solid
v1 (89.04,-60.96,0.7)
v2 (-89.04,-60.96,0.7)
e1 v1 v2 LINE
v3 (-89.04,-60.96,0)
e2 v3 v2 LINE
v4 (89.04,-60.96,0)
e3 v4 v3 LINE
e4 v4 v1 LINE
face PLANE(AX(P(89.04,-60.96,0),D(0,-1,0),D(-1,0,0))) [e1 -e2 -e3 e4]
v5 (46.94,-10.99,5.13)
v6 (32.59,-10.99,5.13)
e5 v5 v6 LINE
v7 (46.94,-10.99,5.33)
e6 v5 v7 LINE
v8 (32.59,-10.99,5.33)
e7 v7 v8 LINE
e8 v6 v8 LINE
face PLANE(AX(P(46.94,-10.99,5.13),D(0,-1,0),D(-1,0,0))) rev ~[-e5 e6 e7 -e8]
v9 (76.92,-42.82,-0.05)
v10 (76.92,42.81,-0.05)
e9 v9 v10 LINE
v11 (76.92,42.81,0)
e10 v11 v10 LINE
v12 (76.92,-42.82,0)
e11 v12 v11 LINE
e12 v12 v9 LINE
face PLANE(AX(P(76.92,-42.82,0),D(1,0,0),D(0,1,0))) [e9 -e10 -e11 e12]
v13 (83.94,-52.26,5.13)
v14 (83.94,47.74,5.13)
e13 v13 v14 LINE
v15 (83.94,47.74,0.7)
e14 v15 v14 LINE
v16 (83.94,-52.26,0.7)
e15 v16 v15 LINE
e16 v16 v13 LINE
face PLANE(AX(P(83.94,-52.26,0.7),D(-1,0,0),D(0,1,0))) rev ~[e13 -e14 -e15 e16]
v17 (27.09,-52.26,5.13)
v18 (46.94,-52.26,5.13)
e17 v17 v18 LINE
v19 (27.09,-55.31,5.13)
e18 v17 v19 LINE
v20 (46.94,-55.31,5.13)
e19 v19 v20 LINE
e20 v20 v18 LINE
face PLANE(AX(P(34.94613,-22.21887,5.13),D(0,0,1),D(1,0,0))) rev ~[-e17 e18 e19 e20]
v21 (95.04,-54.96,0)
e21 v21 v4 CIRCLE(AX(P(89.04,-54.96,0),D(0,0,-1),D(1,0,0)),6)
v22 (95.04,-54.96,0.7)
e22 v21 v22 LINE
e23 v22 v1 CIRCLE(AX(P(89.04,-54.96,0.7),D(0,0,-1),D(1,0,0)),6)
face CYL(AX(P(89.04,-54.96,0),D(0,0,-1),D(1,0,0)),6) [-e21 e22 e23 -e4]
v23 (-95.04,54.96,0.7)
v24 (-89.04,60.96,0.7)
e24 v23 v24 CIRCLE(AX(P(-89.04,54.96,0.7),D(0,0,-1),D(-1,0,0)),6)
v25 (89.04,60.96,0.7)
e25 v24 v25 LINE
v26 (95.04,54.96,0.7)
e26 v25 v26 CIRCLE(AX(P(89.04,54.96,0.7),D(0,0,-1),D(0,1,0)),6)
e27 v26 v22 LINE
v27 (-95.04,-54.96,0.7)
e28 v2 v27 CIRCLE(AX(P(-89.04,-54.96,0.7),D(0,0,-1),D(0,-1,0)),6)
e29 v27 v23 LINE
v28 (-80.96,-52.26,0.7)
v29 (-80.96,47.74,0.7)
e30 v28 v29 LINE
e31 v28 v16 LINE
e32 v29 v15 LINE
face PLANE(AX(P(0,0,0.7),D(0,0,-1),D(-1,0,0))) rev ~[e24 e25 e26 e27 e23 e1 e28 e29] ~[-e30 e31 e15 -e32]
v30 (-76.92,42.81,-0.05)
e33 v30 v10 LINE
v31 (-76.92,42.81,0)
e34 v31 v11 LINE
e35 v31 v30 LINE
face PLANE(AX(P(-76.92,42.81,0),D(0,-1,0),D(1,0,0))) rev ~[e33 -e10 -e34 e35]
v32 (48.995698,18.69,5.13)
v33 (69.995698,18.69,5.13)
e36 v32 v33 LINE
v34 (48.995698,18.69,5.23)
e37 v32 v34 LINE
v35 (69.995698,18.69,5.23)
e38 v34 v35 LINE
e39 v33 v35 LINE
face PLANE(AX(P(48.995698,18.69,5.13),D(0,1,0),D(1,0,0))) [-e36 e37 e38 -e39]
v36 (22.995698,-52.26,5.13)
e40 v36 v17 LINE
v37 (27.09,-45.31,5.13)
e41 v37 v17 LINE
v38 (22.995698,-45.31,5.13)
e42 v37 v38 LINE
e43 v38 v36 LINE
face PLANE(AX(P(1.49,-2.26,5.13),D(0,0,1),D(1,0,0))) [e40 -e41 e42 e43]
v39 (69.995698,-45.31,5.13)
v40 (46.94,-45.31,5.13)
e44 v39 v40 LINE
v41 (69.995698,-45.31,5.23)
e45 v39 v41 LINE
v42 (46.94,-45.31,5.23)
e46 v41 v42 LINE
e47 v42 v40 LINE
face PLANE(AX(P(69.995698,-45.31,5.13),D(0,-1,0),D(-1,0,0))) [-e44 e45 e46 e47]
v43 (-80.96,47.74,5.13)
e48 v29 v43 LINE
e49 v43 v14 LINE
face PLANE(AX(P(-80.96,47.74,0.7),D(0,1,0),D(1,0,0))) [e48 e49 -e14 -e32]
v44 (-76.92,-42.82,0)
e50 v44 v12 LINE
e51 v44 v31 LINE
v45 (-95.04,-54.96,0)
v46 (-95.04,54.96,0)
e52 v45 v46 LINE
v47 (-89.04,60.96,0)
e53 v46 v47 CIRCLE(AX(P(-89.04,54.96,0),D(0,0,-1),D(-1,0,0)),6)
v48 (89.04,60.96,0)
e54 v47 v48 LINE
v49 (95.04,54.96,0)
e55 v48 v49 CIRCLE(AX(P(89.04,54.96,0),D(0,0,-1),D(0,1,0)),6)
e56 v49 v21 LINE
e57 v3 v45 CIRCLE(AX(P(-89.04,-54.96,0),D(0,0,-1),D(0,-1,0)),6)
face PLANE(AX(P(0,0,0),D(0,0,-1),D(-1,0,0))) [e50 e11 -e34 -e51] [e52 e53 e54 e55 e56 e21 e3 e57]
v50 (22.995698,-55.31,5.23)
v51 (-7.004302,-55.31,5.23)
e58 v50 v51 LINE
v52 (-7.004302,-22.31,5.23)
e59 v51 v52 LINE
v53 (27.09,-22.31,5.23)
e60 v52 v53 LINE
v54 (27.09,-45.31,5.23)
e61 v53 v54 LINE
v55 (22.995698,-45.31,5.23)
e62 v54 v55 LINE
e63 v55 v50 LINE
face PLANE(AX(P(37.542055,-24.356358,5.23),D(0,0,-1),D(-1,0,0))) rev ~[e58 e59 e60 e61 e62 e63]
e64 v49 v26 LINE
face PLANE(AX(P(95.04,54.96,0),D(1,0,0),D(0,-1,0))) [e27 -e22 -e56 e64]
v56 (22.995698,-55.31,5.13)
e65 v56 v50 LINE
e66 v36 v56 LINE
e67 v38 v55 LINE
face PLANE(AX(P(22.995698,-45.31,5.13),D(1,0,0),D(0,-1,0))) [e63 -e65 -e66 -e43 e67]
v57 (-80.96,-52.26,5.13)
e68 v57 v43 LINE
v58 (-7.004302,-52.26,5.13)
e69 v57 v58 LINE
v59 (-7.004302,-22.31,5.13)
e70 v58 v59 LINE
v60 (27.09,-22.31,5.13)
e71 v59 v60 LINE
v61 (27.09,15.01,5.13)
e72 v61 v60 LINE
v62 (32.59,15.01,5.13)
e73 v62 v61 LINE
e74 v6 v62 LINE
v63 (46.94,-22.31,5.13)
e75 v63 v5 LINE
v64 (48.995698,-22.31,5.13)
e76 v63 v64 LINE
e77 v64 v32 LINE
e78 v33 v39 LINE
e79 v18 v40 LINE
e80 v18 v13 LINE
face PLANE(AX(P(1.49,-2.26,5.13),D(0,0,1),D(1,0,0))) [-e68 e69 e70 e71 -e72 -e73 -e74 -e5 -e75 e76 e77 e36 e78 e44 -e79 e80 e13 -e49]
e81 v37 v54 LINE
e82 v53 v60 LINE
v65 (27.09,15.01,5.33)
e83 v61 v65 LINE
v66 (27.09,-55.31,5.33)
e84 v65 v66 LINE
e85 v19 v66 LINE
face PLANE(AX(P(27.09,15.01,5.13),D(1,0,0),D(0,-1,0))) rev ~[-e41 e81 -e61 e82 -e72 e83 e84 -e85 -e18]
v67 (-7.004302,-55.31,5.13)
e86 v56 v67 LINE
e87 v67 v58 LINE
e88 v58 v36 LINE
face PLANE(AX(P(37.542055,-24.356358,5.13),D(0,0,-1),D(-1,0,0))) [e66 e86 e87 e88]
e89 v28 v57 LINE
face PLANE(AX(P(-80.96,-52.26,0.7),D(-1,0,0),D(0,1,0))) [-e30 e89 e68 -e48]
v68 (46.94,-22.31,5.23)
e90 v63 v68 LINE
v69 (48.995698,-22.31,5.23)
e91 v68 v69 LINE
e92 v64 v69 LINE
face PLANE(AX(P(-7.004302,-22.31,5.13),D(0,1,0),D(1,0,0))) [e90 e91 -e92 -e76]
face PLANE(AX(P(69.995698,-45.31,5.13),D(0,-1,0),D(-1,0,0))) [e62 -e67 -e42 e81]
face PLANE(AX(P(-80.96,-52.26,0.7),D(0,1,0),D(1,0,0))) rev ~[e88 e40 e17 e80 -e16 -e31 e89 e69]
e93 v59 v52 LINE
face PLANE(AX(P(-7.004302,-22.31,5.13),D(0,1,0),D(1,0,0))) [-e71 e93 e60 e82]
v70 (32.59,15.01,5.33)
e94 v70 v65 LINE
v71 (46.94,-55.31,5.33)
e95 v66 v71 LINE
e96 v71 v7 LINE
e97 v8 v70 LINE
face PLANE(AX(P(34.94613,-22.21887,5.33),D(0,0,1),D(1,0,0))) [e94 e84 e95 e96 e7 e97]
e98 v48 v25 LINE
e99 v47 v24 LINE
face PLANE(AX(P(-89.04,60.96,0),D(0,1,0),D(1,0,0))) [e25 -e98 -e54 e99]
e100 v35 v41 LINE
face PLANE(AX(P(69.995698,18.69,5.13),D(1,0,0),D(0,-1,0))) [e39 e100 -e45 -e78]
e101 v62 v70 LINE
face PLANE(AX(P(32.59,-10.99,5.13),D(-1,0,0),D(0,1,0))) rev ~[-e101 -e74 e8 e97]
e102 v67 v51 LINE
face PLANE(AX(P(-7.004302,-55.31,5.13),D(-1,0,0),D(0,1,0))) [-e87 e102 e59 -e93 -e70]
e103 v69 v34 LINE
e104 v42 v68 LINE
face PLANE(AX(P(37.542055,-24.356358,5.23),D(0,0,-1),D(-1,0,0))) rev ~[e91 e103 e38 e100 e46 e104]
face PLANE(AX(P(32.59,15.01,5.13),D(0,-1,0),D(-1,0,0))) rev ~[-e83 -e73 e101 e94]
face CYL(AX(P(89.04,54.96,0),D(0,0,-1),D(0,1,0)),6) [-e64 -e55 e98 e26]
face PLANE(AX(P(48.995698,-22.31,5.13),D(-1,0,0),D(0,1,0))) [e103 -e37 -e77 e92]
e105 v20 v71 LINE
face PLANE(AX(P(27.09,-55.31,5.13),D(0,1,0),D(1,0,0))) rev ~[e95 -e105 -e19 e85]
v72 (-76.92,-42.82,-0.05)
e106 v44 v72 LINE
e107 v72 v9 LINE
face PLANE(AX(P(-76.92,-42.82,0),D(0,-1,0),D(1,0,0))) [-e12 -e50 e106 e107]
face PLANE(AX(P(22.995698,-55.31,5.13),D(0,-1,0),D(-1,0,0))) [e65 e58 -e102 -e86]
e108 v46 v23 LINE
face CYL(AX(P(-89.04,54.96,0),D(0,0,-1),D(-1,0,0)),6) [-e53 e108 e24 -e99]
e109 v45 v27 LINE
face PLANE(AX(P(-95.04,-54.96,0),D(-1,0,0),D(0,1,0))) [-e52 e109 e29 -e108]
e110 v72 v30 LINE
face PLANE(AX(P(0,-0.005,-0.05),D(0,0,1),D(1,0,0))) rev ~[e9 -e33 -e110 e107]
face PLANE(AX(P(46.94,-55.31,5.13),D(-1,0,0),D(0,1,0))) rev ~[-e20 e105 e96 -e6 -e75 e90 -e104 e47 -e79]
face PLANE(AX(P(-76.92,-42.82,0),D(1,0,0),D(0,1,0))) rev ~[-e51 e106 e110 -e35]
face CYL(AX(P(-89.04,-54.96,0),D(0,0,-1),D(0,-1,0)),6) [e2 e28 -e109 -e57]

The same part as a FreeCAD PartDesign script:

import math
import FreeCAD as App
import Part
import Sketcher
Q = App.Units.Quantity


def add_polygon(sketch, points):
    """Adds a closed chain of lines whose ends are joined by coincident constraints."""
    first, n = sketch.GeometryCount, len(points)
    for a, b in zip(points, points[1:] + points[:1]):
        sketch.addGeometry(Part.LineSegment(App.Vector(*a, 0), App.Vector(*b, 0)), False)
    for i in range(n):
        sketch.addConstraint(Sketcher.Constraint("Coincident", first + i, 2, first + (i + 1) % n, 1))

doc = App.newDocument("Part")
body = doc.addObject("PartDesign::Body", "Body")

# Sketch on XY plane
sketch1 = body.newObject("Sketcher::SketchObject", "Sketch")
sketch1.AttachmentSupport = (doc.getObject("XY_Plane"), [""])
sketch1.MapMode = "FlatFace"
sketch1.addGeometry(Part.LineSegment(App.Vector(89, 61, 0), App.Vector(-89, 61, 0)), False)
sketch1.addGeometry(Part.ArcOfCircle(Part.Circle(App.Vector(-89, 55, 0), App.Vector(0, 0, 1), 6), math.radians(90), math.radians(180)), False)
sketch1.addGeometry(Part.LineSegment(App.Vector(-95, 55, 0), App.Vector(-95, -55, 0)), False)
sketch1.addGeometry(Part.ArcOfCircle(Part.Circle(App.Vector(-89, -55, 0), App.Vector(0, 0, 1), 6), math.radians(180), math.radians(270)), False)
sketch1.addGeometry(Part.LineSegment(App.Vector(-89, -61, 0), App.Vector(89, -61, 0)), False)
sketch1.addGeometry(Part.ArcOfCircle(Part.Circle(App.Vector(89, -55, 0), App.Vector(0, 0, 1), 6), math.radians(-90), math.radians(0)), False)
sketch1.addGeometry(Part.LineSegment(App.Vector(95, -55, 0), App.Vector(95, 55, 0)), False)
sketch1.addGeometry(Part.ArcOfCircle(Part.Circle(App.Vector(89, 55, 0), App.Vector(0, 0, 1), 6), math.radians(0), math.radians(90)), False)
sketch1.addConstraint(Sketcher.Constraint("Tangent", 0, 2, 1, 1))
sketch1.addConstraint(Sketcher.Constraint("Tangent", 1, 2, 2, 1))
sketch1.addConstraint(Sketcher.Constraint("Tangent", 2, 2, 3, 1))
sketch1.addConstraint(Sketcher.Constraint("Tangent", 3, 2, 4, 1))
sketch1.addConstraint(Sketcher.Constraint("Tangent", 4, 2, 5, 1))
sketch1.addConstraint(Sketcher.Constraint("Tangent", 5, 2, 6, 1))
sketch1.addConstraint(Sketcher.Constraint("Tangent", 6, 2, 7, 1))
sketch1.addConstraint(Sketcher.Constraint("Tangent", 7, 2, 0, 1))
sketch1.addConstraint(Sketcher.Constraint("Horizontal", 0))
sketch1.addConstraint(Sketcher.Constraint("Vertical", 2))
sketch1.addConstraint(Sketcher.Constraint("Horizontal", 4))
sketch1.addConstraint(Sketcher.Constraint("Vertical", 6))
sketch1.addConstraint(Sketcher.Constraint("Equal", 1, 3))
sketch1.addConstraint(Sketcher.Constraint("Equal", 3, 5))
sketch1.addConstraint(Sketcher.Constraint("Equal", 5, 7))
sketch1.addConstraint(Sketcher.Constraint("Symmetric", 1, 3, 5, 3, -1, 1))
sketch1.addConstraint(Sketcher.Constraint("Radius", 1, Q("6 mm")))
sketch1.addConstraint(Sketcher.Constraint("DistanceX", 0, 2, 0, 1, Q("178.08 mm")))
sketch1.addConstraint(Sketcher.Constraint("DistanceY", 2, 2, 2, 1, Q("109.92 mm")))
pad1 = body.newObject("PartDesign::Pad", "Pad")
pad1.Profile = sketch1
pad1.Length = 0.7

# Sketch on XY plane
sketch2 = body.newObject("Sketcher::SketchObject", "Sketch001")
sketch2.AttachmentSupport = (doc.getObject("XY_Plane"), [""])
sketch2.MapMode = "FlatFace"
add_polygon(sketch2, [(-77, 43), (-77, -43), (77, -43), (77, 43)])  # lines 0-3
sketch2.addConstraint(Sketcher.Constraint("Vertical", 0))
sketch2.addConstraint(Sketcher.Constraint("Horizontal", 1))
sketch2.addConstraint(Sketcher.Constraint("Vertical", 2))
sketch2.addConstraint(Sketcher.Constraint("Horizontal", 3))
sketch2.addConstraint(Sketcher.Constraint("DistanceX", 1, 1, 1, 2, Q("153.84 mm")))
sketch2.addConstraint(Sketcher.Constraint("DistanceY", 0, 2, 0, 1, Q("85.63 mm")))
sketch2.addConstraint(Sketcher.Constraint("DistanceX", 0, 2, -1, 1, Q("76.92 mm")))
sketch2.addConstraint(Sketcher.Constraint("DistanceY", 0, 2, -1, 1, Q("42.82 mm")))
pocket1 = body.newObject("PartDesign::Pocket", "Pocket")
pocket1.Profile = sketch2
pocket1.Length = 0.8
pocket1.Reversed = True

# Sketch on XY plane
sketch3 = body.newObject("Sketcher::SketchObject", "Sketch002")
sketch3.AttachmentSupport = (doc.getObject("XY_Plane"), [""])
sketch3.MapMode = "FlatFace"
add_polygon(sketch3, [(-77, 43), (-77, -43), (77, -43), (77, 43)])  # lines 0-3
sketch3.addConstraint(Sketcher.Constraint("Vertical", 0))
sketch3.addConstraint(Sketcher.Constraint("Horizontal", 1))
sketch3.addConstraint(Sketcher.Constraint("Vertical", 2))
sketch3.addConstraint(Sketcher.Constraint("Horizontal", 3))
sketch3.addConstraint(Sketcher.Constraint("DistanceX", 1, 1, 1, 2, Q("153.84 mm")))
sketch3.addConstraint(Sketcher.Constraint("DistanceY", 0, 2, 0, 1, Q("85.63 mm")))
sketch3.addConstraint(Sketcher.Constraint("DistanceX", 0, 2, -1, 1, Q("76.92 mm")))
sketch3.addConstraint(Sketcher.Constraint("DistanceY", 0, 2, -1, 1, Q("42.82 mm")))
pad2 = body.newObject("PartDesign::Pad", "Pad001")
pad2.Profile = sketch3
pad2.Type = "TwoLengths"
pad2.Length = 0.75
pad2.Length2 = 0.05

# Sketch on XY plane
sketch4 = body.newObject("Sketcher::SketchObject", "Sketch003")
sketch4.AttachmentSupport = (doc.getObject("XY_Plane"), [""])
sketch4.MapMode = "FlatFace"
sketch4.AttachmentOffset = App.Placement(App.Vector(0, 0, 0.7), App.Rotation())
add_polygon(sketch4, [(-81, 48), (-81, -52), (84, -52), (84, 48)])  # lines 0-3
sketch4.addConstraint(Sketcher.Constraint("Vertical", 0))
sketch4.addConstraint(Sketcher.Constraint("Horizontal", 1))
sketch4.addConstraint(Sketcher.Constraint("Vertical", 2))
sketch4.addConstraint(Sketcher.Constraint("Horizontal", 3))
sketch4.addConstraint(Sketcher.Constraint("DistanceY", 0, 2, 0, 1, Q("100 mm")))
sketch4.addConstraint(Sketcher.Constraint("DistanceX", 1, 1, 1, 2, Q("164.9 mm")))
sketch4.addConstraint(Sketcher.Constraint("DistanceX", 0, 2, -1, 1, Q("80.96 mm")))
sketch4.addConstraint(Sketcher.Constraint("DistanceY", 0, 2, -1, 1, Q("52.26 mm")))
pad3 = body.newObject("PartDesign::Pad", "Pad002")
pad3.Profile = sketch4
pad3.Length = 4.43

# Sketch on XY plane
sketch5 = body.newObject("Sketcher::SketchObject", "Sketch004")
sketch5.AttachmentSupport = (doc.getObject("XY_Plane"), [""])
sketch5.MapMode = "FlatFace"
sketch5.AttachmentOffset = App.Placement(App.Vector(0, 0, 5.13), App.Rotation())
add_polygon(sketch5, [(70, 19), (49, 19), (49, -22), (-7, -22), (-7, -55), (23, -55), (23, -45), (70, -45)])  # lines 0-7
sketch5.addConstraint(Sketcher.Constraint("Horizontal", 0))
sketch5.addConstraint(Sketcher.Constraint("Vertical", 1))
sketch5.addConstraint(Sketcher.Constraint("Horizontal", 2))
sketch5.addConstraint(Sketcher.Constraint("Vertical", 3))
sketch5.addConstraint(Sketcher.Constraint("Horizontal", 4))
sketch5.addConstraint(Sketcher.Constraint("Vertical", 5))
sketch5.addConstraint(Sketcher.Constraint("Horizontal", 6))
sketch5.addConstraint(Sketcher.Constraint("Vertical", 7))
sketch5.addConstraint(Sketcher.Constraint("DistanceX", 0, 2, 0, 1, Q("21 mm")))
sketch5.addConstraint(Sketcher.Constraint("DistanceX", 2, 2, 2, 1, Q("56 mm")))
sketch5.addConstraint(Sketcher.Constraint("DistanceX", 4, 1, 4, 2, Q("30 mm")))
sketch5.addConstraint(Sketcher.Constraint("DistanceY", 1, 2, 1, 1, Q("41 mm")))
sketch5.addConstraint(Sketcher.Constraint("DistanceY", 3, 2, 3, 1, Q("33 mm")))
sketch5.addConstraint(Sketcher.Constraint("DistanceY", 5, 1, 5, 2, Q("10 mm")))
sketch5.addConstraint(Sketcher.Constraint("DistanceY", -1, 1, 0, 2, Q("18.69 mm")))
sketch5.addConstraint(Sketcher.Constraint("DistanceX", -1, 1, 0, 2, Q("48.995698 mm")))
pad4 = body.newObject("PartDesign::Pad", "Pad003")
pad4.Profile = sketch5
pad4.Length = 0.1

# Sketch on XY plane
sketch6 = body.newObject("Sketcher::SketchObject", "Sketch005")
sketch6.AttachmentSupport = (doc.getObject("XY_Plane"), [""])
sketch6.MapMode = "FlatFace"
sketch6.AttachmentOffset = App.Placement(App.Vector(0, 0, 5.13), App.Rotation())
add_polygon(sketch6, [(33, 15), (27, 15), (27, -55), (47, -55), (47, -11), (33, -11)])  # lines 0-5
sketch6.addConstraint(Sketcher.Constraint("Horizontal", 0))
sketch6.addConstraint(Sketcher.Constraint("Vertical", 1))
sketch6.addConstraint(Sketcher.Constraint("Horizontal", 2))
sketch6.addConstraint(Sketcher.Constraint("Vertical", 3))
sketch6.addConstraint(Sketcher.Constraint("Horizontal", 4))
sketch6.addConstraint(Sketcher.Constraint("Vertical", 5))
sketch6.addConstraint(Sketcher.Constraint("DistanceY", 5, 1, 5, 2, Q("26 mm")))
sketch6.addConstraint(Sketcher.Constraint("DistanceX", 0, 2, 0, 1, Q("5.5 mm")))
sketch6.addConstraint(Sketcher.Constraint("DistanceX", 2, 1, 2, 2, Q("19.85 mm")))
sketch6.addConstraint(Sketcher.Constraint("DistanceY", 1, 2, 1, 1, Q("70.32 mm")))
sketch6.addConstraint(Sketcher.Constraint("DistanceX", -1, 1, 0, 2, Q("27.09 mm")))
sketch6.addConstraint(Sketcher.Constraint("DistanceY", -1, 1, 0, 2, Q("15.01 mm")))
pad5 = body.newObject("PartDesign::Pad", "Pad004")
pad5.Profile = sketch6
pad5.Length = 0.2

doc.recompute()
